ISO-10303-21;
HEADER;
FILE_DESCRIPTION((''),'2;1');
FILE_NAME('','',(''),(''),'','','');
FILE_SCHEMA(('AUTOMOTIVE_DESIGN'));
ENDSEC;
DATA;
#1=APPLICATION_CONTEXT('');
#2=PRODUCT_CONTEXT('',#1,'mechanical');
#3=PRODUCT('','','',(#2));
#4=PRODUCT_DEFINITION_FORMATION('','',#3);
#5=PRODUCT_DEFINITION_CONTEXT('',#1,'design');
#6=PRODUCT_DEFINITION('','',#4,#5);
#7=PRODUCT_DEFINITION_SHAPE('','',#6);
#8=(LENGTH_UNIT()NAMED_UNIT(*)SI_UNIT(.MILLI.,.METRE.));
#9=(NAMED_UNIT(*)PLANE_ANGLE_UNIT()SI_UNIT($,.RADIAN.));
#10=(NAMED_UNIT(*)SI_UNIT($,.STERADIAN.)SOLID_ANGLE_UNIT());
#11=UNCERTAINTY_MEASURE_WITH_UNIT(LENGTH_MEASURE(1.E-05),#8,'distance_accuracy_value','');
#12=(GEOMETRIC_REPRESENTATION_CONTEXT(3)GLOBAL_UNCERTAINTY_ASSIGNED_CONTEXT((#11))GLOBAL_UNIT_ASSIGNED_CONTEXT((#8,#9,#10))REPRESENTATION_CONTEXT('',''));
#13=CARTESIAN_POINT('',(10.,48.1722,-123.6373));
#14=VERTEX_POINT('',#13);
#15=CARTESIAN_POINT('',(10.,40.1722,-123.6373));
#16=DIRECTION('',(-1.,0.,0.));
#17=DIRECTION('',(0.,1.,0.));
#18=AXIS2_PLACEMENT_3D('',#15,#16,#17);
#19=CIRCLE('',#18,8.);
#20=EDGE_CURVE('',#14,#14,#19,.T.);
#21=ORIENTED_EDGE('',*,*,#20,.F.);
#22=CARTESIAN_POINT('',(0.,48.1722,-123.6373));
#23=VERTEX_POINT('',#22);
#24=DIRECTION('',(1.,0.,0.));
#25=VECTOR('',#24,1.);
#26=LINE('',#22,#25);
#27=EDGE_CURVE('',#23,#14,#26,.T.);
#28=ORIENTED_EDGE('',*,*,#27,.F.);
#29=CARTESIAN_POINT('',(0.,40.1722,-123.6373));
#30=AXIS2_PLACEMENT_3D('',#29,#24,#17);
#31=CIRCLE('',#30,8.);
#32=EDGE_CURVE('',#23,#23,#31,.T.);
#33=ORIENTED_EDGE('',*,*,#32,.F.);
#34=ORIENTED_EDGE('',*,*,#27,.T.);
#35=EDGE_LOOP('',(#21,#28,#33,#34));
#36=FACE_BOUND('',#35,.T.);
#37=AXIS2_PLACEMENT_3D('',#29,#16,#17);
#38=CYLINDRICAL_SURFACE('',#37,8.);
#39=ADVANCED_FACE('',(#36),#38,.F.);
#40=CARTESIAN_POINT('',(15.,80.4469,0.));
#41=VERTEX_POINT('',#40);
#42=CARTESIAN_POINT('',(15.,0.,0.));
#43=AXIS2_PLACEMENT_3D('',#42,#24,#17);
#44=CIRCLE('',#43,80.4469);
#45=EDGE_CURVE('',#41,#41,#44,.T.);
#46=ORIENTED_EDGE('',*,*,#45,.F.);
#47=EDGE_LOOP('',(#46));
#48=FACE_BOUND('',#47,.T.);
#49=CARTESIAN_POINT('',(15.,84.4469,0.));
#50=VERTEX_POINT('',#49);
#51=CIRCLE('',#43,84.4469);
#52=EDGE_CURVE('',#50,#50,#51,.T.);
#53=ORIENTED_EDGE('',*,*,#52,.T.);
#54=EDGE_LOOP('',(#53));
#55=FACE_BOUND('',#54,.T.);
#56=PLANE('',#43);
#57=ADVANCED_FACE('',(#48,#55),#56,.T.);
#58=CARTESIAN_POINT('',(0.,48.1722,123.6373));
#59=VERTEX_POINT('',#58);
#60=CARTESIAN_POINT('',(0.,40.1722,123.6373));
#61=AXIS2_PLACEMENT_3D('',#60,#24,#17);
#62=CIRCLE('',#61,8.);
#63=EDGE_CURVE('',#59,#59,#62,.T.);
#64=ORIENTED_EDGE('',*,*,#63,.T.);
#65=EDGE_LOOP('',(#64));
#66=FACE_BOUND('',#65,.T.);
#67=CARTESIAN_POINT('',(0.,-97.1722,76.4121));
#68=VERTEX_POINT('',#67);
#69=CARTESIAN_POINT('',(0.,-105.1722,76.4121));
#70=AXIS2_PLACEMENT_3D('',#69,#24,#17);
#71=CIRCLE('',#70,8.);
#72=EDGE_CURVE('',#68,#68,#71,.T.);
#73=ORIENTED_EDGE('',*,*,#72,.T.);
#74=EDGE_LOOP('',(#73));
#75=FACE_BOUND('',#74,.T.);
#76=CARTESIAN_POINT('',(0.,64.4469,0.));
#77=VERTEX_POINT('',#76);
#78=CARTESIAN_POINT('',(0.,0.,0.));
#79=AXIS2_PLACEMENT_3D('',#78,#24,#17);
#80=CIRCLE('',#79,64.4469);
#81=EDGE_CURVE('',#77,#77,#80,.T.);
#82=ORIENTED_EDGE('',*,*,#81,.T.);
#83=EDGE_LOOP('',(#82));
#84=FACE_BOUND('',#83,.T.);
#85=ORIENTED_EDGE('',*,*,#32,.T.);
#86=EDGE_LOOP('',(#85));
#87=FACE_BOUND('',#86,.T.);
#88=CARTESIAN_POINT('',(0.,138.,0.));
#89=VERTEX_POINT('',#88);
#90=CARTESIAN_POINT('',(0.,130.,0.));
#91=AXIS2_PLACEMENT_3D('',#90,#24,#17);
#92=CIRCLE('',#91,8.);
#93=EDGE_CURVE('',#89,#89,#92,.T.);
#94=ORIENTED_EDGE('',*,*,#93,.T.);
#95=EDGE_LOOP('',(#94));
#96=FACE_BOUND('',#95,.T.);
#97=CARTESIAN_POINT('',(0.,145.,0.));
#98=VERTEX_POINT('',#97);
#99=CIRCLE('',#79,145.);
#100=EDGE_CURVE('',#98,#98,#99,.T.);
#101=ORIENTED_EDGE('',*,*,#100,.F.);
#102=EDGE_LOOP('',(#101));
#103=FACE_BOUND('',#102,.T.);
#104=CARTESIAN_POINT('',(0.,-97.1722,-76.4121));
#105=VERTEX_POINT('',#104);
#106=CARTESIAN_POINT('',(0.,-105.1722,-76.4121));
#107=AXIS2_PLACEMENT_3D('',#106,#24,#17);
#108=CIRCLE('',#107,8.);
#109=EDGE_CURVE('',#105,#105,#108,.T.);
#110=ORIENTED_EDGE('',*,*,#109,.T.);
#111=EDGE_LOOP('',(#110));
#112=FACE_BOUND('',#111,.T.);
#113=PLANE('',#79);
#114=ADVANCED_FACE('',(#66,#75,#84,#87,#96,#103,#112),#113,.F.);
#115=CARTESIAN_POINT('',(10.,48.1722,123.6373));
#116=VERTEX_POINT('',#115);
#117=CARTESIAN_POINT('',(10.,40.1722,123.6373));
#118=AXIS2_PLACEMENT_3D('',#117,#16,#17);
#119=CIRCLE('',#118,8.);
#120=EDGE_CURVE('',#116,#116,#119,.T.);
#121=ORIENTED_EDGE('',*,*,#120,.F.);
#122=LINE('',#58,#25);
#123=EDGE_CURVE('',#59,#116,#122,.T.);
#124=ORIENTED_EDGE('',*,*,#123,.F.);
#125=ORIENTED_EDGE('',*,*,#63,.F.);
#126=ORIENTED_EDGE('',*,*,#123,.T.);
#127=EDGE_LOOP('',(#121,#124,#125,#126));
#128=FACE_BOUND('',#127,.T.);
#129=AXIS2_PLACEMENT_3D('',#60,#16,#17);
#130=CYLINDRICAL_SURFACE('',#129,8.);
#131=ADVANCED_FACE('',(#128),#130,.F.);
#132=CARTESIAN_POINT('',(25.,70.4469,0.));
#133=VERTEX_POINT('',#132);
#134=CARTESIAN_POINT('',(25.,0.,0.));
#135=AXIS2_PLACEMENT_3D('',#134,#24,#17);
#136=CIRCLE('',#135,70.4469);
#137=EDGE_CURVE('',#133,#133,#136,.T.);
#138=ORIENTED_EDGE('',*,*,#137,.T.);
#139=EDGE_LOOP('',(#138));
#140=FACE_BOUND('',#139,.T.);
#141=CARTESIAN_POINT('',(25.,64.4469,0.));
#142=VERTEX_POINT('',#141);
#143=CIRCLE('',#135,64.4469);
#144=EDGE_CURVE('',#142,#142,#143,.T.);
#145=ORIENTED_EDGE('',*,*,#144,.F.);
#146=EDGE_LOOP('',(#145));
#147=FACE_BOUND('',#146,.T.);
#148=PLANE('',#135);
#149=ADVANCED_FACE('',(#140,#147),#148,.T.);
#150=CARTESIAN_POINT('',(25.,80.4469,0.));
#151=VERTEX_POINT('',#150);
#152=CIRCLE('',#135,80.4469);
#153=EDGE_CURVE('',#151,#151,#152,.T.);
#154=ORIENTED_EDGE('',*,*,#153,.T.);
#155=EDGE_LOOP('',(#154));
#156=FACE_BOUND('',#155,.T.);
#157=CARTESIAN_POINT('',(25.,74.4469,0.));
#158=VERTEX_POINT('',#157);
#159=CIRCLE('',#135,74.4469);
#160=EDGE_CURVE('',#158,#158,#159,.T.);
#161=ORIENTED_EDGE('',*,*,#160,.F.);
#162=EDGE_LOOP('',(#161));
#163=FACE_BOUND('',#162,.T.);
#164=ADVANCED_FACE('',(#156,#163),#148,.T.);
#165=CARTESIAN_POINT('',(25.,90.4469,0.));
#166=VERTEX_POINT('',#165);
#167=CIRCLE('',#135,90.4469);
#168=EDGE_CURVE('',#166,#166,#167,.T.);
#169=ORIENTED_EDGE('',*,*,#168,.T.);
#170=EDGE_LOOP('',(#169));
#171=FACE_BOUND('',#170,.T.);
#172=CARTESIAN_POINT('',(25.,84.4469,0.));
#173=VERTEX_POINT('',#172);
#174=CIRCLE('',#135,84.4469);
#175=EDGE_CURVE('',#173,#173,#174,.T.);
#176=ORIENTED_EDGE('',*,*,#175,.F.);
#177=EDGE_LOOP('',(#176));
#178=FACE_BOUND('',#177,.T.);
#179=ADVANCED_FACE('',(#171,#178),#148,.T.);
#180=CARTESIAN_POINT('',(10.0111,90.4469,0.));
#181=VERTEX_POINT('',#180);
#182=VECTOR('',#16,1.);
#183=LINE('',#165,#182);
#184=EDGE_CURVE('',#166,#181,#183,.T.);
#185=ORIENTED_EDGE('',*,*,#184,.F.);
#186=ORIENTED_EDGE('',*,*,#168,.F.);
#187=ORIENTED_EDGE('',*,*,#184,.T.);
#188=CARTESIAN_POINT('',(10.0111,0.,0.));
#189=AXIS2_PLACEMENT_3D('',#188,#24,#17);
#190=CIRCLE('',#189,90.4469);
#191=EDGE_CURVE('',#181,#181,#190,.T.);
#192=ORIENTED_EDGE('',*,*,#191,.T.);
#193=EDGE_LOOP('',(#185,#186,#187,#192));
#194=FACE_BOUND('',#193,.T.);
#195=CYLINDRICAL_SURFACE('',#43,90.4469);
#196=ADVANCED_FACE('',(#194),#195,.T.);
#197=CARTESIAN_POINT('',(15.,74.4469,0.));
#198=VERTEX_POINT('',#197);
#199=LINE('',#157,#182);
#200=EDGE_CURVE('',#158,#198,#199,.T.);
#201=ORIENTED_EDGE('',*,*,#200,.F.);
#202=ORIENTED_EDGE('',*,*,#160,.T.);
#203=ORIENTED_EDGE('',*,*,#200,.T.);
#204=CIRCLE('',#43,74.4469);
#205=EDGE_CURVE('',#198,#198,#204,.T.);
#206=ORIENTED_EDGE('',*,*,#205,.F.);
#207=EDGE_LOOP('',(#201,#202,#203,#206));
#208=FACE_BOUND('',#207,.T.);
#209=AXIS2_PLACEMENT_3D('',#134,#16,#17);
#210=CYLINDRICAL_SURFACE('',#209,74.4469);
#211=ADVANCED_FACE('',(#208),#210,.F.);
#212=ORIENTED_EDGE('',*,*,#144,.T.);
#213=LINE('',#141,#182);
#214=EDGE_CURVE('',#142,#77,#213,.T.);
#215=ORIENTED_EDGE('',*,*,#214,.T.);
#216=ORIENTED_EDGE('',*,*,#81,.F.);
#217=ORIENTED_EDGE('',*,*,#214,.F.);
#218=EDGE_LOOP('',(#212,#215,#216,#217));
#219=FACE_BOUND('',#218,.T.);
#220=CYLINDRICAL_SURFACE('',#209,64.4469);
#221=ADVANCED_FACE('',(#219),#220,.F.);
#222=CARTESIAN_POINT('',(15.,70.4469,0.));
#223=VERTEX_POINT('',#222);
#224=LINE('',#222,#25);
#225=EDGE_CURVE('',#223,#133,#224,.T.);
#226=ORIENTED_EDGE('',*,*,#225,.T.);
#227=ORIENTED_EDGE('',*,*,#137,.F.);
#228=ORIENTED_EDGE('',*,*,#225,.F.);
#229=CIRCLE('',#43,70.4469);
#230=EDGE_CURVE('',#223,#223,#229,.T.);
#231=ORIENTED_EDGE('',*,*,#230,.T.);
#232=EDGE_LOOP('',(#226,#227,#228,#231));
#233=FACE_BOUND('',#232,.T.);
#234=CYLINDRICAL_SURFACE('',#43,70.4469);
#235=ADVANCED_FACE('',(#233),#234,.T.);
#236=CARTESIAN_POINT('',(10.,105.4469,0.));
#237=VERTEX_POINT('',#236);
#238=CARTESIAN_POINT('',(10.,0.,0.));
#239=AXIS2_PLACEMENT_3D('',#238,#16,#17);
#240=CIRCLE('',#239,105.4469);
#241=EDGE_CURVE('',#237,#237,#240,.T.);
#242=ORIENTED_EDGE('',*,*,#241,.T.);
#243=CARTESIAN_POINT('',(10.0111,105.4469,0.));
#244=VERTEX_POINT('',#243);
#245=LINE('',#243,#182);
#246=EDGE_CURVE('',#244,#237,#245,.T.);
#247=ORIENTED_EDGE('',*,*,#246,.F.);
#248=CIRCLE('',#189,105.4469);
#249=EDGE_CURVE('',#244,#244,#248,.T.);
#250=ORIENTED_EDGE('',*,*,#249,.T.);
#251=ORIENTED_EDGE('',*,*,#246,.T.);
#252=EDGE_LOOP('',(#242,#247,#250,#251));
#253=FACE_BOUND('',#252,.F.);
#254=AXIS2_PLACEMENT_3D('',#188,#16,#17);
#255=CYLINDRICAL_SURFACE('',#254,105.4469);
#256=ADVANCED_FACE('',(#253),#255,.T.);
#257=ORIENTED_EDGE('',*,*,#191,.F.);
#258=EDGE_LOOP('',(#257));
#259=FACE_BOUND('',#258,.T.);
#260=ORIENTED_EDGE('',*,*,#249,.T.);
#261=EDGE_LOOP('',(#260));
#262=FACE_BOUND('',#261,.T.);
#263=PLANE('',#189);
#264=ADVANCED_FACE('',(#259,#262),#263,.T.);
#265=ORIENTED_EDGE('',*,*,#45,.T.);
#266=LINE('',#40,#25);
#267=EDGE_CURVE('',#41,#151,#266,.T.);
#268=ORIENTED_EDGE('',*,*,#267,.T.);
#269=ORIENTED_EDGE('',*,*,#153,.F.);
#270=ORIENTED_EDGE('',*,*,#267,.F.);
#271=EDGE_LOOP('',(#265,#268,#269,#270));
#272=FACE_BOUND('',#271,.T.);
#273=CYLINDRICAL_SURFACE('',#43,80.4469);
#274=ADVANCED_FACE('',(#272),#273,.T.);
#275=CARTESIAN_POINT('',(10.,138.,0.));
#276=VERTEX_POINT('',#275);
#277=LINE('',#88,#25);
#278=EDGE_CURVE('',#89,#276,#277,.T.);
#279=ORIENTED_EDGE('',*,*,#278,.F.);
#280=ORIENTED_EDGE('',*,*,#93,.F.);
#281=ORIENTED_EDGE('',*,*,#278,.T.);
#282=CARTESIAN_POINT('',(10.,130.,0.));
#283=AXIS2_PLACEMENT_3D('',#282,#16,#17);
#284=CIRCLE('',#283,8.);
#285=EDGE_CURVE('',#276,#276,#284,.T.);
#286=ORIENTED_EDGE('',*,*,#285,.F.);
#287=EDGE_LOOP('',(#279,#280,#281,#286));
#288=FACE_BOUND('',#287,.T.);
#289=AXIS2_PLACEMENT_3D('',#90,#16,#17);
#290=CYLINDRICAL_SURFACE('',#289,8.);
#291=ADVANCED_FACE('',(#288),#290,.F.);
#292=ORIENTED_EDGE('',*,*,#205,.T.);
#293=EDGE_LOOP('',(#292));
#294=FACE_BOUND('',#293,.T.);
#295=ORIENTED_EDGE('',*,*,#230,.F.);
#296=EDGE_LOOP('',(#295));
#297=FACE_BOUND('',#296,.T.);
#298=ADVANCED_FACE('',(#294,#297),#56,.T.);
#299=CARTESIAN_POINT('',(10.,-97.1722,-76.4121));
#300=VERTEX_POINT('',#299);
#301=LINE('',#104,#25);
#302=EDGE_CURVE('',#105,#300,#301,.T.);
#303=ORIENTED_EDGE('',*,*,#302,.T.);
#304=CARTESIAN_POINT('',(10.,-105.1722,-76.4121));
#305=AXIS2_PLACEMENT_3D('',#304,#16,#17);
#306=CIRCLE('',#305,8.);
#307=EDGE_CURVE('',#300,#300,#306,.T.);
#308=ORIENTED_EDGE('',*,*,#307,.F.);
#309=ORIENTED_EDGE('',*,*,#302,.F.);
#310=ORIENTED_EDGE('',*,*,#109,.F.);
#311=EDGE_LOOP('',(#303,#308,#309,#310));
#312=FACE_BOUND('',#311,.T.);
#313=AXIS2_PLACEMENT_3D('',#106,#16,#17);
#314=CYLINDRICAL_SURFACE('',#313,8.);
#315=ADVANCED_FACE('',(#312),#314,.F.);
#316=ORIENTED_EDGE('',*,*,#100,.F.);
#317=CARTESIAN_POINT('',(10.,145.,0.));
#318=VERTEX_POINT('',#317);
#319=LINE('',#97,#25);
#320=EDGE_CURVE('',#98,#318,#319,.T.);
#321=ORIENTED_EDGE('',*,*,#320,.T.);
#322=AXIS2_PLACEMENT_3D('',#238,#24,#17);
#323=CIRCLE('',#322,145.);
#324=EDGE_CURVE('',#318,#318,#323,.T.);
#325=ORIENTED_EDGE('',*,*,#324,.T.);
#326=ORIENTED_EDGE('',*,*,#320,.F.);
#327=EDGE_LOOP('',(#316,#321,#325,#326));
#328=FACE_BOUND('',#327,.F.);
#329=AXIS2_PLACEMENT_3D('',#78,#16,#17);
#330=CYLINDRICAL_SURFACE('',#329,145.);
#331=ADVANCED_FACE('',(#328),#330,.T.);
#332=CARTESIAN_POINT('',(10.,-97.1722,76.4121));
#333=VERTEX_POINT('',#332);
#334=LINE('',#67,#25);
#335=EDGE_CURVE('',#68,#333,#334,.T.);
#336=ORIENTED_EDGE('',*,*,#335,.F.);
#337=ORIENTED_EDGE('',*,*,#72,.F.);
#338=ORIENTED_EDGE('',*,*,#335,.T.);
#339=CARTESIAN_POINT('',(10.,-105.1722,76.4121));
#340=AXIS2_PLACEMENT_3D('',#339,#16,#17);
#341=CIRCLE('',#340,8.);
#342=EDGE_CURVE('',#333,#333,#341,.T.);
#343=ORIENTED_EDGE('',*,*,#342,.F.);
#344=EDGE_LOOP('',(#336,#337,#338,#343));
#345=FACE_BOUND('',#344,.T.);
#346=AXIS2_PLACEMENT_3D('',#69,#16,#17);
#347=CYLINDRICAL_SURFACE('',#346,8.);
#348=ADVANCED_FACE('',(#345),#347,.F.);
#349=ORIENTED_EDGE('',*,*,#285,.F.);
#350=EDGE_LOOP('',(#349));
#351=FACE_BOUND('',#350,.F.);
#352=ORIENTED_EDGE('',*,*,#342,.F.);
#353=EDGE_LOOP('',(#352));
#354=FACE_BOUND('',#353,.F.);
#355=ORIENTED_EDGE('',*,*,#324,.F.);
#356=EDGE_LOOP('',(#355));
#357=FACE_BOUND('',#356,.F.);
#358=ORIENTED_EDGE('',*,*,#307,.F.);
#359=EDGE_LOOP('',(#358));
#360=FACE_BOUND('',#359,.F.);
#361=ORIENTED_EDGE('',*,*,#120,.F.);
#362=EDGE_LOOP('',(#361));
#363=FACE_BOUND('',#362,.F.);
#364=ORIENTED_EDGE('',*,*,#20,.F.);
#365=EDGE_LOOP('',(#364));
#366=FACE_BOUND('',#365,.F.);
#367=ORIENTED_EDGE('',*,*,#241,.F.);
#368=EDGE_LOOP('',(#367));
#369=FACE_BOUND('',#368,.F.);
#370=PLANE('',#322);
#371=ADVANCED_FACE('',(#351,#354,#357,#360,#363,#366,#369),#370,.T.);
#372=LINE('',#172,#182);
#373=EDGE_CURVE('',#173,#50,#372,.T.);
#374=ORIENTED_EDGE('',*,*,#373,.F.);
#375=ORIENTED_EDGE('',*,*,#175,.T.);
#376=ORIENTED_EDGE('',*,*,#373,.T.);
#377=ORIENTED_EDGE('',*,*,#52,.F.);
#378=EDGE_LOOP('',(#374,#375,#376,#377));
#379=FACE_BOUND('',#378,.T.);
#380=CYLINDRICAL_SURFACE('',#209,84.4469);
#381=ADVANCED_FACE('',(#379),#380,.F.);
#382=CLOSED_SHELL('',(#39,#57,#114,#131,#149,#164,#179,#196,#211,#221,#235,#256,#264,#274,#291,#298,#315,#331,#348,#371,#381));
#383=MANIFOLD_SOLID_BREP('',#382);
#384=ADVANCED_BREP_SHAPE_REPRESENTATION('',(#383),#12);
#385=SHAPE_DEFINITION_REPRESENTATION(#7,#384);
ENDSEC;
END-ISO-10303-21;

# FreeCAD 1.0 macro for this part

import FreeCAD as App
import Part
import Sketcher
from FreeCAD import Vector
Q = App.Units.Quantity

doc = App.newDocument("Part")
body = doc.addObject("PartDesign::Body", "Body")

sketch1 = body.newObject("Sketcher::SketchObject", "Sketch")
sketch1.AttachmentSupport = (doc.getObject("YZ_Plane"), [""])
sketch1.MapMode = "FlatFace"
sketch1.addGeometry(Part.Circle(Vector(0, 0, 0), Vector(0, 0, 1), 145), False)
sketch1.addGeometry(Part.Circle(Vector(40.1722, 123.6373, 0), Vector(0, 0, 1), 8), False)
sketch1.addGeometry(Part.Circle(Vector(-105.1722, 76.4121, 0), Vector(0, 0, 1), 8), False)
sketch1.addGeometry(Part.Circle(Vector(-105.1722, -76.4121, 0), Vector(0, 0, 1), 8), False)
sketch1.addGeometry(Part.Circle(Vector(40.1722, -123.6373, 0), Vector(0, 0, 1), 8), False)
sketch1.addGeometry(Part.Circle(Vector(130, 0, 0), Vector(0, 0, 1), 8), False)
sketch1.addGeometry(Part.Circle(Vector(0, 0, 0), Vector(0, 0, 1), 115), False)
sketch1.addConstraint(Sketcher.Constraint("Coincident", 0, 3, -1, 1))
sketch1.addConstraint(Sketcher.Constraint("Coincident", 6, 3, -1, 1))
sketch1.addConstraint(Sketcher.Constraint("Equal", 1, 2))
sketch1.addConstraint(Sketcher.Constraint("Equal", 2, 3))
sketch1.addConstraint(Sketcher.Constraint("Equal", 3, 4))
sketch1.addConstraint(Sketcher.Constraint("Equal", 4, 5))
sketch1.addConstraint(Sketcher.Constraint("Symmetric", 2, 3, 3, 3, -1))
sketch1.addConstraint(Sketcher.Constraint("Symmetric", 1, 3, 4, 3, -1))
sketch1.addConstraint(Sketcher.Constraint("PointOnObject", 5, 3, -1))
sketch1.addConstraint(Sketcher.Constraint("Diameter", 0, Q("290 mm")))
sketch1.addConstraint(Sketcher.Constraint("Diameter", 1, Q("16 mm")))
sketch1.addConstraint(Sketcher.Constraint("Diameter", 6, Q("230 mm")))
sketch1.addConstraint(Sketcher.Constraint("DistanceX", -1, 1, 5, 3, Q("130 mm")))
sketch1.addConstraint(Sketcher.Constraint("DistanceY", -1, 1, 2, 3, Q("76.412 mm")))
sketch1.addConstraint(Sketcher.Constraint("DistanceX", -1, 1, 1, 3, Q("40.1722 mm")))
sketch1.addConstraint(Sketcher.Constraint("DistanceY", -1, 1, 1, 3, Q("123.6373 mm")))
sketch1.addConstraint(Sketcher.Constraint("DistanceX", 2, 3, -1, 1, Q("105.1722 mm")))
pad1 = body.newObject("PartDesign::Pad", "Pad")
pad1.Profile = sketch1
pad1.Length = 10

sketch2 = body.newObject("Sketcher::SketchObject", "Sketch001")
sketch2.AttachmentSupport = (doc.getObject("XY_Plane"), [""])
sketch2.MapMode = "FlatFace"
sketch2.addGeometry(Part.LineSegment(Vector(0, 115, 0), Vector(0, 95.4469, 0)), False)
sketch2.addGeometry(Part.LineSegment(Vector(0, 95.4469, 0), Vector(10, 95.4469, 0)), False)
sketch2.addGeometry(Part.LineSegment(Vector(10, 95.4469, 0), Vector(10, 115, 0)), False)
sketch2.addGeometry(Part.LineSegment(Vector(10, 115, 0), Vector(0, 115, 0)), False)
sketch2.addConstraint(Sketcher.Constraint("Coincident", 0, 2, 1, 1))
sketch2.addConstraint(Sketcher.Constraint("Coincident", 1, 2, 2, 1))
sketch2.addConstraint(Sketcher.Constraint("Coincident", 2, 2, 3, 1))
sketch2.addConstraint(Sketcher.Constraint("Coincident", 3, 2, 0, 1))
sketch2.addConstraint(Sketcher.Constraint("Vertical", 0))
sketch2.addConstraint(Sketcher.Constraint("Horizontal", 1))
sketch2.addConstraint(Sketcher.Constraint("Vertical", 2))
sketch2.addConstraint(Sketcher.Constraint("Horizontal", 3))
sketch2.addConstraint(Sketcher.Constraint("PointOnObject", 0, 2, -2))
sketch2.addConstraint(Sketcher.Constraint("DistanceX", 1, 1, 1, 2, Q("10 mm")))
sketch2.addConstraint(Sketcher.Constraint("DistanceY", -1, 1, 2, 2, Q("115 mm")))
sketch2.addConstraint(Sketcher.Constraint("DistanceY", 0, 2, 0, 1, Q("19.553 mm")))
revolution = body.newObject("PartDesign::Revolution", "Revolution")
revolution.Profile = sketch2
revolution.ReferenceAxis = (sketch2, ["H_Axis"])
revolution.Angle = 360

sketch3 = body.newObject("Sketcher::SketchObject", "Sketch002")
sketch3.AttachmentSupport = (doc.getObject("XY_Plane"), [""])
sketch3.MapMode = "FlatFace"
sketch3.addGeometry(Part.LineSegment(Vector(25, 90.4469, 0), Vector(10.0111, 90.4469, 0)), False)
sketch3.addGeometry(Part.LineSegment(Vector(10.0111, 90.4469, 0), Vector(10.0111, 105.4469, 0)), False)
sketch3.addGeometry(Part.LineSegment(Vector(10.0111, 105.4469, 0), Vector(0, 105.4469, 0)), False)
sketch3.addGeometry(Part.LineSegment(Vector(0, 105.4469, 0), Vector(0, 64.4469, 0)), False)
sketch3.addGeometry(Part.LineSegment(Vector(0, 64.4469, 0), Vector(25, 64.4469, 0)), False)
sketch3.addGeometry(Part.LineSegment(Vector(25, 64.4469, 0), Vector(25, 70.4469, 0)), False)
sketch3.addGeometry(Part.LineSegment(Vector(25, 70.4469, 0), Vector(15, 70.4469, 0)), False)
sketch3.addGeometry(Part.LineSegment(Vector(15, 70.4469, 0), Vector(15, 74.4469, 0)), False)
sketch3.addGeometry(Part.LineSegment(Vector(15, 74.4469, 0), Vector(25, 74.4469, 0)), False)
sketch3.addGeometry(Part.LineSegment(Vector(25, 74.4469, 0), Vector(25, 80.4469, 0)), False)
sketch3.addGeometry(Part.LineSegment(Vector(25, 80.4469, 0), Vector(15, 80.4469, 0)), False)
sketch3.addGeometry(Part.LineSegment(Vector(15, 80.4469, 0), Vector(15, 84.4469, 0)), False)
sketch3.addGeometry(Part.LineSegment(Vector(15, 84.4469, 0), Vector(25, 84.4469, 0)), False)
sketch3.addGeometry(Part.LineSegment(Vector(25, 84.4469, 0), Vector(25, 90.4469, 0)), False)
sketch3.addConstraint(Sketcher.Constraint("Coincident", 0, 2, 1, 1))
sketch3.addConstraint(Sketcher.Constraint("Coincident", 1, 2, 2, 1))
sketch3.addConstraint(Sketcher.Constraint("Coincident", 2, 2, 3, 1))
sketch3.addConstraint(Sketcher.Constraint("Coincident", 3, 2, 4, 1))
sketch3.addConstraint(Sketcher.Constraint("Coincident", 4, 2, 5, 1))
sketch3.addConstraint(Sketcher.Constraint("Coincident", 5, 2, 6, 1))
sketch3.addConstraint(Sketcher.Constraint("Coincident", 6, 2, 7, 1))
sketch3.addConstraint(Sketcher.Constraint("Coincident", 7, 2, 8, 1))
sketch3.addConstraint(Sketcher.Constraint("Coincident", 8, 2, 9, 1))
sketch3.addConstraint(Sketcher.Constraint("Coincident", 9, 2, 10, 1))
sketch3.addConstraint(Sketcher.Constraint("Coincident", 10, 2, 11, 1))
sketch3.addConstraint(Sketcher.Constraint("Coincident", 11, 2, 12, 1))
sketch3.addConstraint(Sketcher.Constraint("Coincident", 12, 2, 13, 1))
sketch3.addConstraint(Sketcher.Constraint("Coincident", 13, 2, 0, 1))
sketch3.addConstraint(Sketcher.Constraint("Horizontal", 0))
sketch3.addConstraint(Sketcher.Constraint("Vertical", 1))
sketch3.addConstraint(Sketcher.Constraint("Horizontal", 2))
sketch3.addConstraint(Sketcher.Constraint("Vertical", 3))
sketch3.addConstraint(Sketcher.Constraint("Horizontal", 4))
sketch3.addConstraint(Sketcher.Constraint("Vertical", 5))
sketch3.addConstraint(Sketcher.Constraint("Horizontal", 6))
sketch3.addConstraint(Sketcher.Constraint("Vertical", 7))
sketch3.addConstraint(Sketcher.Constraint("Horizontal", 8))
sketch3.addConstraint(Sketcher.Constraint("Vertical", 9))
sketch3.addConstraint(Sketcher.Constraint("Horizontal", 10))
sketch3.addConstraint(Sketcher.Constraint("Vertical", 11))
sketch3.addConstraint(Sketcher.Constraint("Horizontal", 12))
sketch3.addConstraint(Sketcher.Constraint("Vertical", 13))
sketch3.addConstraint(Sketcher.Constraint("PointOnObject", 2, 2, -2))
sketch3.addConstraint(Sketcher.Constraint("Vertical", 5, 2, 8, 2))
sketch3.addConstraint(Sketcher.Constraint("Vertical", 7, 2, 10, 2))
sketch3.addConstraint(Sketcher.Constraint("Vertical", 9, 2, 12, 2))
sketch3.addConstraint(Sketcher.Constraint("Equal", 5, 9))
sketch3.addConstraint(Sketcher.Constraint("Equal", 7, 11))
sketch3.addConstraint(Sketcher.Constraint("Equal", 9, 13))
sketch3.addConstraint(Sketcher.Constraint("DistanceX", 4, 1, 4, 2, Q("25 mm")))
sketch3.addConstraint(Sketcher.Constraint("DistanceX", 6, 2, 6, 1, Q("10 mm")))
sketch3.addConstraint(Sketcher.Constraint("DistanceY", 1, 1, 1, 2, Q("15 mm")))
sketch3.addConstraint(Sketcher.Constraint("DistanceY", 3, 2, 3, 1, Q("41 mm")))
sketch3.addConstraint(Sketcher.Constraint("DistanceY", 5, 1, 5, 2, Q("6 mm")))
sketch3.addConstraint(Sketcher.Constraint("DistanceX", 0, 2, 0, 1, Q("14.989 mm")))
sketch3.addConstraint(Sketcher.Constraint("DistanceY", -1, 1, 0, 2, Q("90.447 mm")))
revolution2 = body.newObject("PartDesign::Revolution", "Revolution001")
revolution2.Profile = sketch3
revolution2.ReferenceAxis = (sketch3, ["H_Axis"])
revolution2.Angle = 360

doc.recompute()
